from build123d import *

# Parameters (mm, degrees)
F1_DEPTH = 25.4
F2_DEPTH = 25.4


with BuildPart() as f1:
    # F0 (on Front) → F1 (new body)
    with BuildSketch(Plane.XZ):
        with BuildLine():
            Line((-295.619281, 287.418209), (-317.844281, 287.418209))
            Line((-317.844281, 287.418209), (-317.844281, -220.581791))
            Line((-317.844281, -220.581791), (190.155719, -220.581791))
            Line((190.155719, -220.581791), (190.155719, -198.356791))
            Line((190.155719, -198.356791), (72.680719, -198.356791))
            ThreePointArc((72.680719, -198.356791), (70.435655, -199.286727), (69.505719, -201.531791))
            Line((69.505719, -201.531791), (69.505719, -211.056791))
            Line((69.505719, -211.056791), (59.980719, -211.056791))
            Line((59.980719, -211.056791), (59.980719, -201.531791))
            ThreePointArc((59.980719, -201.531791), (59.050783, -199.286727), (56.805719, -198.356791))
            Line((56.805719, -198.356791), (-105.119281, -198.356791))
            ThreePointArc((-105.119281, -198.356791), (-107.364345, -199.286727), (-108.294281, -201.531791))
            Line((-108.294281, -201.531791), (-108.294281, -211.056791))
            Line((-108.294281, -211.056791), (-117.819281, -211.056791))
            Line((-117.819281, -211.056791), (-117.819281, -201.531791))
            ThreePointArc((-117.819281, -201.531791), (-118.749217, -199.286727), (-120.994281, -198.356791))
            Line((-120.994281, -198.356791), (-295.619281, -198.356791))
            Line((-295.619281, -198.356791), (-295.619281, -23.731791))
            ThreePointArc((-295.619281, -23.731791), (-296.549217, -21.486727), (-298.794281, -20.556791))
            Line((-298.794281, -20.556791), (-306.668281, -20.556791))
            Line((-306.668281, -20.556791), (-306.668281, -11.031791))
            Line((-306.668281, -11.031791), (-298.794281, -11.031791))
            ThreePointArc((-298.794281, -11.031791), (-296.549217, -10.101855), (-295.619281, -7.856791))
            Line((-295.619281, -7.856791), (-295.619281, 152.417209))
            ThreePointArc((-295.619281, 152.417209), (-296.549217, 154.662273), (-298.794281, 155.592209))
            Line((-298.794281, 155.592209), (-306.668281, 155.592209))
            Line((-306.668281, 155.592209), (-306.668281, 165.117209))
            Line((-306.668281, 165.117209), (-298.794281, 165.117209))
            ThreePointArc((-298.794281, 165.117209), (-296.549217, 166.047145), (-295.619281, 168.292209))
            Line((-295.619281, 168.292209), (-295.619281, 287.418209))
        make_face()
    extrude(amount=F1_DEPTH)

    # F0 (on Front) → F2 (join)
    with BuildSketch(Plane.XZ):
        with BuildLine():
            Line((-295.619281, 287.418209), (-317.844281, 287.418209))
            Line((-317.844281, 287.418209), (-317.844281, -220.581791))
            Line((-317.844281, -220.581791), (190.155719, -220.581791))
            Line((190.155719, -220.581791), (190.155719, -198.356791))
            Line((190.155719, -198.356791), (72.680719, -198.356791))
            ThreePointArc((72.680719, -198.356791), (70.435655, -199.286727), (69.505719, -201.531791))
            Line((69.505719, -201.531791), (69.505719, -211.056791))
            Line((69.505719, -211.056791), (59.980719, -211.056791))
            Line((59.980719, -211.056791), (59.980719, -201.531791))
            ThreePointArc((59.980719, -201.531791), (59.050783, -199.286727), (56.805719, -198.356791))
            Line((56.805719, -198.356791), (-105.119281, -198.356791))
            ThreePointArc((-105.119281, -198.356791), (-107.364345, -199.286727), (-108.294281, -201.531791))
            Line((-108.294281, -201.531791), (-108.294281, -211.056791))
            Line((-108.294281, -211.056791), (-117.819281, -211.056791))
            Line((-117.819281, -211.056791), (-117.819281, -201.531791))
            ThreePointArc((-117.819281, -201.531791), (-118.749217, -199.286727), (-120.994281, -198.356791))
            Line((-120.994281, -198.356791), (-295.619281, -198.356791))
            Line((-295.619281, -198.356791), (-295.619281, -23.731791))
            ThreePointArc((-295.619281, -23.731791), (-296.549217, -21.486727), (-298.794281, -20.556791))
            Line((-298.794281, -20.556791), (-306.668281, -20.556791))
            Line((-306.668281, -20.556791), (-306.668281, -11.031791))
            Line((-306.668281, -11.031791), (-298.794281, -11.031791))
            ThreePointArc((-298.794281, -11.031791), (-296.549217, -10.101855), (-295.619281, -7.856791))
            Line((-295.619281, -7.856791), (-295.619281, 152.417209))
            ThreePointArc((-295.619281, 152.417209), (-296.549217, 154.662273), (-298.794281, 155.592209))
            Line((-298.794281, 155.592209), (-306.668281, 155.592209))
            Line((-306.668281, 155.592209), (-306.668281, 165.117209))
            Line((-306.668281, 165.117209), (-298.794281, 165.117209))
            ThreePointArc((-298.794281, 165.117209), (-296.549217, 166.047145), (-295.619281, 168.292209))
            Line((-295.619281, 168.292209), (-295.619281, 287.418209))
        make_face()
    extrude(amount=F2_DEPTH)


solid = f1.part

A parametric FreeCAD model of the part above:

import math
import FreeCAD as App
import Part
import Sketcher

V = App.Vector
Q = App.Units.Quantity

doc = App.newDocument("Part")
body = doc.addObject("PartDesign::Body", "Body")

# Sketch on XZ plane
sketch1 = body.newObject("Sketcher::SketchObject", "Sketch")
sketch1.AttachmentSupport = (doc.getObject("XZ_Plane"), [""])
sketch1.MapMode = "FlatFace"
sketch1.addGeometry([
    Part.LineSegment(V(-295.6, 287.4, 0), V(-317.8, 287.4, 0)),  # 0
    Part.LineSegment(V(-317.8, 287.4, 0), V(-317.8, -220.6, 0)),  # 1
    Part.LineSegment(V(-317.8, -220.6, 0), V(190.2, -220.6, 0)),  # 2
    Part.LineSegment(V(190.2, -220.6, 0), V(190.2, -198.4, 0)),  # 3
    Part.LineSegment(V(190.2, -198.4, 0), V(72.7, -198.4, 0)),  # 4
    Part.ArcOfCircle(Part.Circle(V(72.7, -201.5, 0), V(0, 0, 1), 3.2), math.radians(90), math.radians(180)),  # 5
    Part.LineSegment(V(69.5, -201.5, 0), V(69.5, -211.1, 0)),  # 6
    Part.LineSegment(V(69.5, -211.1, 0), V(60, -211.1, 0)),  # 7
    Part.LineSegment(V(60, -211.1, 0), V(60, -201.5, 0)),  # 8
    Part.ArcOfCircle(Part.Circle(V(56.8, -201.5, 0), V(0, 0, 1), 3.2), math.radians(0), math.radians(90)),  # 9
    Part.LineSegment(V(56.8, -198.4, 0), V(-105.1, -198.4, 0)),  # 10
    Part.ArcOfCircle(Part.Circle(V(-105.1, -201.5, 0), V(0, 0, 1), 3.2), math.radians(90), math.radians(180)),  # 11
    Part.LineSegment(V(-108.3, -201.5, 0), V(-108.3, -211.1, 0)),  # 12
    Part.LineSegment(V(-108.3, -211.1, 0), V(-117.8, -211.1, 0)),  # 13
    Part.LineSegment(V(-117.8, -211.1, 0), V(-117.8, -201.5, 0)),  # 14
    Part.ArcOfCircle(Part.Circle(V(-121, -201.5, 0), V(0, 0, 1), 3.2), math.radians(0), math.radians(90)),  # 15
    Part.LineSegment(V(-121, -198.4, 0), V(-295.6, -198.4, 0)),  # 16
    Part.LineSegment(V(-295.6, -198.4, 0), V(-295.6, -23.7, 0)),  # 17
    Part.ArcOfCircle(Part.Circle(V(-298.8, -23.7, 0), V(0, 0, 1), 3.2), math.radians(0), math.radians(90)),  # 18
    Part.LineSegment(V(-298.8, -20.6, 0), V(-306.7, -20.6, 0)),  # 19
    Part.LineSegment(V(-306.7, -20.6, 0), V(-306.7, -11, 0)),  # 20
    Part.LineSegment(V(-306.7, -11, 0), V(-298.8, -11, 0)),  # 21
    Part.ArcOfCircle(Part.Circle(V(-298.8, -7.9, 0), V(0, 0, 1), 3.2), math.radians(-90), math.radians(0)),  # 22
    Part.LineSegment(V(-295.6, -7.9, 0), V(-295.6, 152.4, 0)),  # 23
    Part.ArcOfCircle(Part.Circle(V(-298.8, 152.4, 0), V(0, 0, 1), 3.2), math.radians(0), math.radians(90)),  # 24
    Part.LineSegment(V(-298.8, 155.6, 0), V(-306.7, 155.6, 0)),  # 25
    Part.LineSegment(V(-306.7, 155.6, 0), V(-306.7, 165.1, 0)),  # 26
    Part.LineSegment(V(-306.7, 165.1, 0), V(-298.8, 165.1, 0)),  # 27
    Part.ArcOfCircle(Part.Circle(V(-298.8, 168.3, 0), V(0, 0, 1), 3.2), math.radians(-90), math.radians(0)),  # 28
    Part.LineSegment(V(-295.6, 168.3, 0), V(-295.6, 287.4, 0)),  # 29
], False)
sketch1.addConstraint([
    Sketcher.Constraint("Coincident", 0, 2, 1, 1),
    Sketcher.Constraint("Coincident", 1, 2, 2, 1),
    Sketcher.Constraint("Coincident", 2, 2, 3, 1),
    Sketcher.Constraint("Coincident", 3, 2, 4, 1),
    Sketcher.Constraint("Tangent", 4, 2, 5, 1),
    Sketcher.Constraint("Tangent", 5, 2, 6, 1),
    Sketcher.Constraint("Coincident", 6, 2, 7, 1),
    Sketcher.Constraint("Coincident", 7, 2, 8, 1),
    Sketcher.Constraint("Tangent", 8, 2, 9, 1),
    Sketcher.Constraint("Tangent", 9, 2, 10, 1),
    Sketcher.Constraint("Tangent", 10, 2, 11, 1),
    Sketcher.Constraint("Tangent", 11, 2, 12, 1),
    Sketcher.Constraint("Coincident", 12, 2, 13, 1),
    Sketcher.Constraint("Coincident", 13, 2, 14, 1),
    Sketcher.Constraint("Tangent", 14, 2, 15, 1),
    Sketcher.Constraint("Tangent", 15, 2, 16, 1),
    Sketcher.Constraint("Coincident", 16, 2, 17, 1),
    Sketcher.Constraint("Tangent", 17, 2, 18, 1),
    Sketcher.Constraint("Tangent", 18, 2, 19, 1),
    Sketcher.Constraint("Coincident", 19, 2, 20, 1),
    Sketcher.Constraint("Coincident", 20, 2, 21, 1),
    Sketcher.Constraint("Tangent", 21, 2, 22, 1),
    Sketcher.Constraint("Tangent", 22, 2, 23, 1),
    Sketcher.Constraint("Tangent", 23, 2, 24, 1),
    Sketcher.Constraint("Tangent", 24, 2, 25, 1),
    Sketcher.Constraint("Coincident", 25, 2, 26, 1),
    Sketcher.Constraint("Coincident", 26, 2, 27, 1),
    Sketcher.Constraint("Tangent", 27, 2, 28, 1),
    Sketcher.Constraint("Tangent", 28, 2, 29, 1),
    Sketcher.Constraint("Coincident", 29, 2, 0, 1),
    Sketcher.Constraint("Horizontal", 0),
    Sketcher.Constraint("Vertical", 1),
    Sketcher.Constraint("Horizontal", 2),
    Sketcher.Constraint("Vertical", 3),
    Sketcher.Constraint("Horizontal", 4),
    Sketcher.Constraint("Vertical", 6),
    Sketcher.Constraint("Horizontal", 7),
    Sketcher.Constraint("Vertical", 8),
    Sketcher.Constraint("Horizontal", 10),
    Sketcher.Constraint("Vertical", 12),
    Sketcher.Constraint("Horizontal", 13),
    Sketcher.Constraint("Vertical", 14),
    Sketcher.Constraint("Horizontal", 16),
    Sketcher.Constraint("Vertical", 17),
    Sketcher.Constraint("Horizontal", 19),
    Sketcher.Constraint("Vertical", 20),
    Sketcher.Constraint("Horizontal", 21),
    Sketcher.Constraint("Vertical", 23),
    Sketcher.Constraint("Horizontal", 25),
    Sketcher.Constraint("Vertical", 26),
    Sketcher.Constraint("Horizontal", 27),
    Sketcher.Constraint("Vertical", 29),
    Sketcher.Constraint("Equal", 5, 9),
    Sketcher.Constraint("Equal", 9, 11),
    Sketcher.Constraint("Equal", 11, 15),
    Sketcher.Constraint("Equal", 15, 18),
    Sketcher.Constraint("Equal", 18, 22),
    Sketcher.Constraint("Equal", 22, 24),
    Sketcher.Constraint("Equal", 24, 28),
    Sketcher.Constraint("Horizontal", 5, 3, 9, 3),
    Sketcher.Constraint("Horizontal", 11, 3, 15, 3),
    Sketcher.Constraint("Horizontal", 7, 2, 12, 2),
    Sketcher.Constraint("Vertical", 18, 3, 22, 3),
    Sketcher.Constraint("Vertical", 24, 3, 28, 3),
    Sketcher.Constraint("Vertical", 20, 2, 25, 2),
    Sketcher.Constraint("Equal", 7, 13),
    Sketcher.Constraint("Equal", 2, 1),
    Sketcher.Constraint("Equal", 0, 3),
    Sketcher.Constraint("Equal", 13, 6),
    Sketcher.Constraint("Equal", 16, 17),
    Sketcher.Constraint("Equal", 14, 20),
    Sketcher.Constraint("Equal", 20, 26),
    Sketcher.Constraint("DistanceX", 2, 1, 2, 2, Q("20 in")),
    Sketcher.Constraint("Radius", 5, Q("0.125 in")),
    Sketcher.Constraint("DistanceX", 11, 3, 5, 3, Q("7 in")),
    Sketcher.Constraint("DistanceX", 18, 3, 15, 3, Q("7 in")),
    Sketcher.Constraint("DistanceX", 19, 2, 19, 1, Q("0.31 in")),
    Sketcher.Constraint("DistanceY", 23, 1, 23, 2, Q("6.31 in")),
    Sketcher.Constraint("DistanceY", 29, 1, 29, 2, Q("4.69 in")),
    Sketcher.Constraint("DistanceX", 9, 3, 5, 2, Q("0.5 in")),
    Sketcher.Constraint("DistanceX", -1, 1, 5, 3, 72.680719),
    Sketcher.Constraint("DistanceY", 5, 3, -1, 1, 201.531791),
])
pad1 = body.newObject("PartDesign::Pad", "Pad")
pad1.Profile = sketch1
pad1.Length = Q("1 in")

# Sketch on XZ plane
sketch2 = body.newObject("Sketcher::SketchObject", "Sketch001")
sketch2.AttachmentSupport = (doc.getObject("XZ_Plane"), [""])
sketch2.MapMode = "FlatFace"
sketch2.addGeometry([
    Part.LineSegment(V(-295.6, 287.4, 0), V(-317.8, 287.4, 0)),  # 0
    Part.LineSegment(V(-317.8, 287.4, 0), V(-317.8, -220.6, 0)),  # 1
    Part.LineSegment(V(-317.8, -220.6, 0), V(190.2, -220.6, 0)),  # 2
    Part.LineSegment(V(190.2, -220.6, 0), V(190.2, -198.4, 0)),  # 3
    Part.LineSegment(V(190.2, -198.4, 0), V(72.7, -198.4, 0)),  # 4
    Part.ArcOfCircle(Part.Circle(V(72.7, -201.5, 0), V(0, 0, 1), 3.2), math.radians(90), math.radians(180)),  # 5
    Part.LineSegment(V(69.5, -201.5, 0), V(69.5, -211.1, 0)),  # 6
    Part.LineSegment(V(69.5, -211.1, 0), V(60, -211.1, 0)),  # 7
    Part.LineSegment(V(60, -211.1, 0), V(60, -201.5, 0)),  # 8
    Part.ArcOfCircle(Part.Circle(V(56.8, -201.5, 0), V(0, 0, 1), 3.2), math.radians(0), math.radians(90)),  # 9
    Part.LineSegment(V(56.8, -198.4, 0), V(-105.1, -198.4, 0)),  # 10
    Part.ArcOfCircle(Part.Circle(V(-105.1, -201.5, 0), V(0, 0, 1), 3.2), math.radians(90), math.radians(180)),  # 11
    Part.LineSegment(V(-108.3, -201.5, 0), V(-108.3, -211.1, 0)),  # 12
    Part.LineSegment(V(-108.3, -211.1, 0), V(-117.8, -211.1, 0)),  # 13
    Part.LineSegment(V(-117.8, -211.1, 0), V(-117.8, -201.5, 0)),  # 14
    Part.ArcOfCircle(Part.Circle(V(-121, -201.5, 0), V(0, 0, 1), 3.2), math.radians(0), math.radians(90)),  # 15
    Part.LineSegment(V(-121, -198.4, 0), V(-295.6, -198.4, 0)),  # 16
    Part.LineSegment(V(-295.6, -198.4, 0), V(-295.6, -23.7, 0)),  # 17
    Part.ArcOfCircle(Part.Circle(V(-298.8, -23.7, 0), V(0, 0, 1), 3.2), math.radians(0), math.radians(90)),  # 18
    Part.LineSegment(V(-298.8, -20.6, 0), V(-306.7, -20.6, 0)),  # 19
    Part.LineSegment(V(-306.7, -20.6, 0), V(-306.7, -11, 0)),  # 20
    Part.LineSegment(V(-306.7, -11, 0), V(-298.8, -11, 0)),  # 21
    Part.ArcOfCircle(Part.Circle(V(-298.8, -7.9, 0), V(0, 0, 1), 3.2), math.radians(-90), math.radians(0)),  # 22
    Part.LineSegment(V(-295.6, -7.9, 0), V(-295.6, 152.4, 0)),  # 23
    Part.ArcOfCircle(Part.Circle(V(-298.8, 152.4, 0), V(0, 0, 1), 3.2), math.radians(0), math.radians(90)),  # 24
    Part.LineSegment(V(-298.8, 155.6, 0), V(-306.7, 155.6, 0)),  # 25
    Part.LineSegment(V(-306.7, 155.6, 0), V(-306.7, 165.1, 0)),  # 26
    Part.LineSegment(V(-306.7, 165.1, 0), V(-298.8, 165.1, 0)),  # 27
    Part.ArcOfCircle(Part.Circle(V(-298.8, 168.3, 0), V(0, 0, 1), 3.2), math.radians(-90), math.radians(0)),  # 28
    Part.LineSegment(V(-295.6, 168.3, 0), V(-295.6, 287.4, 0)),  # 29
], False)
sketch2.addConstraint([
    Sketcher.Constraint("Coincident", 0, 2, 1, 1),
    Sketcher.Constraint("Coincident", 1, 2, 2, 1),
    Sketcher.Constraint("Coincident", 2, 2, 3, 1),
    Sketcher.Constraint("Coincident", 3, 2, 4, 1),
    Sketcher.Constraint("Tangent", 4, 2, 5, 1),
    Sketcher.Constraint("Tangent", 5, 2, 6, 1),
    Sketcher.Constraint("Coincident", 6, 2, 7, 1),
    Sketcher.Constraint("Coincident", 7, 2, 8, 1),
    Sketcher.Constraint("Tangent", 8, 2, 9, 1),
    Sketcher.Constraint("Tangent", 9, 2, 10, 1),
    Sketcher.Constraint("Tangent", 10, 2, 11, 1),
    Sketcher.Constraint("Tangent", 11, 2, 12, 1),
    Sketcher.Constraint("Coincident", 12, 2, 13, 1),
    Sketcher.Constraint("Coincident", 13, 2, 14, 1),
    Sketcher.Constraint("Tangent", 14, 2, 15, 1),
    Sketcher.Constraint("Tangent", 15, 2, 16, 1),
    Sketcher.Constraint("Coincident", 16, 2, 17, 1),
    Sketcher.Constraint("Tangent", 17, 2, 18, 1),
    Sketcher.Constraint("Tangent", 18, 2, 19, 1),
    Sketcher.Constraint("Coincident", 19, 2, 20, 1),
    Sketcher.Constraint("Coincident", 20, 2, 21, 1),
    Sketcher.Constraint("Tangent", 21, 2, 22, 1),
    Sketcher.Constraint("Tangent", 22, 2, 23, 1),
    Sketcher.Constraint("Tangent", 23, 2, 24, 1),
    Sketcher.Constraint("Tangent", 24, 2, 25, 1),
    Sketcher.Constraint("Coincident", 25, 2, 26, 1),
    Sketcher.Constraint("Coincident", 26, 2, 27, 1),
    Sketcher.Constraint("Tangent", 27, 2, 28, 1),
    Sketcher.Constraint("Tangent", 28, 2, 29, 1),
    Sketcher.Constraint("Coincident", 29, 2, 0, 1),
    Sketcher.Constraint("Horizontal", 0),
    Sketcher.Constraint("Vertical", 1),
    Sketcher.Constraint("Horizontal", 2),
    Sketcher.Constraint("Vertical", 3),
    Sketcher.Constraint("Horizontal", 4),
    Sketcher.Constraint("Vertical", 6),
    Sketcher.Constraint("Horizontal", 7),
    Sketcher.Constraint("Vertical", 8),
    Sketcher.Constraint("Horizontal", 10),
    Sketcher.Constraint("Vertical", 12),
    Sketcher.Constraint("Horizontal", 13),
    Sketcher.Constraint("Vertical", 14),
    Sketcher.Constraint("Horizontal", 16),
    Sketcher.Constraint("Vertical", 17),
    Sketcher.Constraint("Horizontal", 19),
    Sketcher.Constraint("Vertical", 20),
    Sketcher.Constraint("Horizontal", 21),
    Sketcher.Constraint("Vertical", 23),
    Sketcher.Constraint("Horizontal", 25),
    Sketcher.Constraint("Vertical", 26),
    Sketcher.Constraint("Horizontal", 27),
    Sketcher.Constraint("Vertical", 29),
    Sketcher.Constraint("Equal", 5, 9),
    Sketcher.Constraint("Equal", 9, 11),
    Sketcher.Constraint("Equal", 11, 15),
    Sketcher.Constraint("Equal", 15, 18),
    Sketcher.Constraint("Equal", 18, 22),
    Sketcher.Constraint("Equal", 22, 24),
    Sketcher.Constraint("Equal", 24, 28),
    Sketcher.Constraint("Horizontal", 5, 3, 9, 3),
    Sketcher.Constraint("Horizontal", 11, 3, 15, 3),
    Sketcher.Constraint("Horizontal", 7, 2, 12, 2),
    Sketcher.Constraint("Vertical", 18, 3, 22, 3),
    Sketcher.Constraint("Vertical", 24, 3, 28, 3),
    Sketcher.Constraint("Vertical", 20, 2, 25, 2),
    Sketcher.Constraint("Equal", 7, 13),
    Sketcher.Constraint("Equal", 2, 1),
    Sketcher.Constraint("Equal", 0, 3),
    Sketcher.Constraint("Equal", 13, 6),
    Sketcher.Constraint("Equal", 16, 17),
    Sketcher.Constraint("Equal", 14, 20),
    Sketcher.Constraint("Equal", 20, 26),
    Sketcher.Constraint("DistanceX", 2, 1, 2, 2, Q("20 in")),
    Sketcher.Constraint("Radius", 5, Q("0.125 in")),
    Sketcher.Constraint("DistanceX", 11, 3, 5, 3, Q("7 in")),
    Sketcher.Constraint("DistanceX", 18, 3, 15, 3, Q("7 in")),
    Sketcher.Constraint("DistanceX", 19, 2, 19, 1, Q("0.31 in")),
    Sketcher.Constraint("DistanceY", 23, 1, 23, 2, Q("6.31 in")),
    Sketcher.Constraint("DistanceY", 29, 1, 29, 2, Q("4.69 in")),
    Sketcher.Constraint("DistanceX", 9, 3, 5, 2, Q("0.5 in")),
    Sketcher.Constraint("DistanceX", -1, 1, 5, 3, 72.680719),
    Sketcher.Constraint("DistanceY", 5, 3, -1, 1, 201.531791),
])
pad2 = body.newObject("PartDesign::Pad", "Pad001")
pad2.Profile = sketch2
pad2.Length = Q("1 in")

doc.recompute()
